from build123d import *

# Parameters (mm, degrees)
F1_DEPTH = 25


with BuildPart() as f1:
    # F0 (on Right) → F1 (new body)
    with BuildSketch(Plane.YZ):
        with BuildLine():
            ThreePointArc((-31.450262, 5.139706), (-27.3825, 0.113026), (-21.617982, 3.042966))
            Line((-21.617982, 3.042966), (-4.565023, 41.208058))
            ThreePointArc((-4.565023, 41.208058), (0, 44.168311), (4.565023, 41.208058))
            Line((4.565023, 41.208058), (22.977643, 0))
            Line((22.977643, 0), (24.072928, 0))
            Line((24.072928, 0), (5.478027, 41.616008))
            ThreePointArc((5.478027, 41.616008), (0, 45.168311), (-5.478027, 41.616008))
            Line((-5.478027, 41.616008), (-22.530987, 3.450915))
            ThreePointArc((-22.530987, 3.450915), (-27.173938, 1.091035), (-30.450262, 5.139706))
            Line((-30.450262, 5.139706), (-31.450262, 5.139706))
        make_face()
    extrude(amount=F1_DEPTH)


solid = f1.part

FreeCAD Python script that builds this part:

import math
import FreeCAD as App
import Part
import Sketcher

V = App.Vector

doc = App.newDocument("Part")
params = doc.addObject("Spreadsheet::Sheet", "Params")
for row, (alias, value) in enumerate([
    ("sketch1_radius", "5 mm"),
    ("sketch1_radius2", "6 mm"),
    ("pad1_length", "25 mm"),
], start=1):
    params.set(f"A{row}", alias)
    params.set(f"B{row}", "=" + value)
    params.setAlias(f"B{row}", alias)

body = doc.addObject("PartDesign::Body", "Body")

# Sketch on YZ plane
sketch1 = body.newObject("Sketcher::SketchObject", "Sketch")
sketch1.AttachmentSupport = (doc.getObject("YZ_Plane"), [""])
sketch1.MapMode = "FlatFace"
sketch1.addGeometry([
    Part.ArcOfCircle(Part.Circle(V(-26.3, 5.1, 0), V(0, 0, 1), 5.1), math.radians(180), math.radians(336)),  # 0
    Part.LineSegment(V(-21.6, 3, 0), V(-4.6, 41.2, 0)),  # 1
    Part.ArcOfCircle(Part.Circle(V(0, 39.2, 0), V(0, 0, 1), 5), math.radians(24), math.radians(156)),  # 2
    Part.LineSegment(V(4.6, 41.2, 0), V(23, 0, 0)),  # 3
    Part.LineSegment(V(23, 0, 0), V(24.1, 0, 0)),  # 4
    Part.LineSegment(V(24.1, 0, 0), V(5.5, 41.6, 0)),  # 5
    Part.ArcOfCircle(Part.Circle(V(0, 39.2, 0), V(0, 0, 1), 6), math.radians(24), math.radians(156)),  # 6
    Part.LineSegment(V(-5.5, 41.6, 0), V(-22.5, 3.5, 0)),  # 7
    Part.ArcOfCircle(Part.Circle(V(-26.3, 5.1, 0), V(0, 0, 1), 4.1), math.radians(180), math.radians(336)),  # 8
    Part.LineSegment(V(-30.5, 5.1, 0), V(-31.5, 5.1, 0)),  # 9
], False)
sketch1.addConstraint([
    Sketcher.Constraint("Tangent", 0, 2, 1, 1),
    Sketcher.Constraint("Tangent", 1, 2, 2, 2),
    Sketcher.Constraint("Tangent", 2, 1, 3, 1),
    Sketcher.Constraint("Coincident", 3, 2, 4, 1),
    Sketcher.Constraint("Coincident", 4, 2, 5, 1),
    Sketcher.Constraint("Tangent", 5, 2, 6, 1),
    Sketcher.Constraint("Tangent", 6, 2, 7, 1),
    Sketcher.Constraint("Tangent", 7, 2, 8, 2),
    Sketcher.Constraint("Coincident", 8, 1, 9, 1),
    Sketcher.Constraint("Coincident", 9, 2, 0, 1),
    Sketcher.Constraint("Horizontal", 4),
    Sketcher.Constraint("Horizontal", 9),
    Sketcher.Constraint("Coincident", 6, 3, 2, 3),
    Sketcher.Constraint("Coincident", 8, 3, 0, 3),
    Sketcher.Constraint("Symmetric", 1, 2, 2, 1, -2),
    Sketcher.Constraint("PointOnObject", 3, 2, -1),
    Sketcher.Constraint("Parallel", 3, 5),
    Sketcher.Constraint("Parallel", 1, 7),
    Sketcher.Constraint("Horizontal", 0, 3, 8, 1),
    Sketcher.Constraint("Radius", 2, 5.0),
    Sketcher.Constraint("Radius", 6, 6.0),
    Sketcher.Constraint("Radius", 0, 5.139706),
    Sketcher.Constraint("DistanceX", 0, 3, 3, 2, 49.288199),
    Sketcher.Constraint("Distance", 3, 45.134561),
    Sketcher.Constraint("DistanceY", -1, 1, 2, 3, 39.168311),
])
sketch1.setExpression("Constraints[19]", "Params.sketch1_radius")
sketch1.setExpression("Constraints[20]", "Params.sketch1_radius2")
pad1 = body.newObject("PartDesign::Pad", "Pad")
pad1.Profile = sketch1
pad1.setExpression("Length", "Params.pad1_length")

doc.recompute()
